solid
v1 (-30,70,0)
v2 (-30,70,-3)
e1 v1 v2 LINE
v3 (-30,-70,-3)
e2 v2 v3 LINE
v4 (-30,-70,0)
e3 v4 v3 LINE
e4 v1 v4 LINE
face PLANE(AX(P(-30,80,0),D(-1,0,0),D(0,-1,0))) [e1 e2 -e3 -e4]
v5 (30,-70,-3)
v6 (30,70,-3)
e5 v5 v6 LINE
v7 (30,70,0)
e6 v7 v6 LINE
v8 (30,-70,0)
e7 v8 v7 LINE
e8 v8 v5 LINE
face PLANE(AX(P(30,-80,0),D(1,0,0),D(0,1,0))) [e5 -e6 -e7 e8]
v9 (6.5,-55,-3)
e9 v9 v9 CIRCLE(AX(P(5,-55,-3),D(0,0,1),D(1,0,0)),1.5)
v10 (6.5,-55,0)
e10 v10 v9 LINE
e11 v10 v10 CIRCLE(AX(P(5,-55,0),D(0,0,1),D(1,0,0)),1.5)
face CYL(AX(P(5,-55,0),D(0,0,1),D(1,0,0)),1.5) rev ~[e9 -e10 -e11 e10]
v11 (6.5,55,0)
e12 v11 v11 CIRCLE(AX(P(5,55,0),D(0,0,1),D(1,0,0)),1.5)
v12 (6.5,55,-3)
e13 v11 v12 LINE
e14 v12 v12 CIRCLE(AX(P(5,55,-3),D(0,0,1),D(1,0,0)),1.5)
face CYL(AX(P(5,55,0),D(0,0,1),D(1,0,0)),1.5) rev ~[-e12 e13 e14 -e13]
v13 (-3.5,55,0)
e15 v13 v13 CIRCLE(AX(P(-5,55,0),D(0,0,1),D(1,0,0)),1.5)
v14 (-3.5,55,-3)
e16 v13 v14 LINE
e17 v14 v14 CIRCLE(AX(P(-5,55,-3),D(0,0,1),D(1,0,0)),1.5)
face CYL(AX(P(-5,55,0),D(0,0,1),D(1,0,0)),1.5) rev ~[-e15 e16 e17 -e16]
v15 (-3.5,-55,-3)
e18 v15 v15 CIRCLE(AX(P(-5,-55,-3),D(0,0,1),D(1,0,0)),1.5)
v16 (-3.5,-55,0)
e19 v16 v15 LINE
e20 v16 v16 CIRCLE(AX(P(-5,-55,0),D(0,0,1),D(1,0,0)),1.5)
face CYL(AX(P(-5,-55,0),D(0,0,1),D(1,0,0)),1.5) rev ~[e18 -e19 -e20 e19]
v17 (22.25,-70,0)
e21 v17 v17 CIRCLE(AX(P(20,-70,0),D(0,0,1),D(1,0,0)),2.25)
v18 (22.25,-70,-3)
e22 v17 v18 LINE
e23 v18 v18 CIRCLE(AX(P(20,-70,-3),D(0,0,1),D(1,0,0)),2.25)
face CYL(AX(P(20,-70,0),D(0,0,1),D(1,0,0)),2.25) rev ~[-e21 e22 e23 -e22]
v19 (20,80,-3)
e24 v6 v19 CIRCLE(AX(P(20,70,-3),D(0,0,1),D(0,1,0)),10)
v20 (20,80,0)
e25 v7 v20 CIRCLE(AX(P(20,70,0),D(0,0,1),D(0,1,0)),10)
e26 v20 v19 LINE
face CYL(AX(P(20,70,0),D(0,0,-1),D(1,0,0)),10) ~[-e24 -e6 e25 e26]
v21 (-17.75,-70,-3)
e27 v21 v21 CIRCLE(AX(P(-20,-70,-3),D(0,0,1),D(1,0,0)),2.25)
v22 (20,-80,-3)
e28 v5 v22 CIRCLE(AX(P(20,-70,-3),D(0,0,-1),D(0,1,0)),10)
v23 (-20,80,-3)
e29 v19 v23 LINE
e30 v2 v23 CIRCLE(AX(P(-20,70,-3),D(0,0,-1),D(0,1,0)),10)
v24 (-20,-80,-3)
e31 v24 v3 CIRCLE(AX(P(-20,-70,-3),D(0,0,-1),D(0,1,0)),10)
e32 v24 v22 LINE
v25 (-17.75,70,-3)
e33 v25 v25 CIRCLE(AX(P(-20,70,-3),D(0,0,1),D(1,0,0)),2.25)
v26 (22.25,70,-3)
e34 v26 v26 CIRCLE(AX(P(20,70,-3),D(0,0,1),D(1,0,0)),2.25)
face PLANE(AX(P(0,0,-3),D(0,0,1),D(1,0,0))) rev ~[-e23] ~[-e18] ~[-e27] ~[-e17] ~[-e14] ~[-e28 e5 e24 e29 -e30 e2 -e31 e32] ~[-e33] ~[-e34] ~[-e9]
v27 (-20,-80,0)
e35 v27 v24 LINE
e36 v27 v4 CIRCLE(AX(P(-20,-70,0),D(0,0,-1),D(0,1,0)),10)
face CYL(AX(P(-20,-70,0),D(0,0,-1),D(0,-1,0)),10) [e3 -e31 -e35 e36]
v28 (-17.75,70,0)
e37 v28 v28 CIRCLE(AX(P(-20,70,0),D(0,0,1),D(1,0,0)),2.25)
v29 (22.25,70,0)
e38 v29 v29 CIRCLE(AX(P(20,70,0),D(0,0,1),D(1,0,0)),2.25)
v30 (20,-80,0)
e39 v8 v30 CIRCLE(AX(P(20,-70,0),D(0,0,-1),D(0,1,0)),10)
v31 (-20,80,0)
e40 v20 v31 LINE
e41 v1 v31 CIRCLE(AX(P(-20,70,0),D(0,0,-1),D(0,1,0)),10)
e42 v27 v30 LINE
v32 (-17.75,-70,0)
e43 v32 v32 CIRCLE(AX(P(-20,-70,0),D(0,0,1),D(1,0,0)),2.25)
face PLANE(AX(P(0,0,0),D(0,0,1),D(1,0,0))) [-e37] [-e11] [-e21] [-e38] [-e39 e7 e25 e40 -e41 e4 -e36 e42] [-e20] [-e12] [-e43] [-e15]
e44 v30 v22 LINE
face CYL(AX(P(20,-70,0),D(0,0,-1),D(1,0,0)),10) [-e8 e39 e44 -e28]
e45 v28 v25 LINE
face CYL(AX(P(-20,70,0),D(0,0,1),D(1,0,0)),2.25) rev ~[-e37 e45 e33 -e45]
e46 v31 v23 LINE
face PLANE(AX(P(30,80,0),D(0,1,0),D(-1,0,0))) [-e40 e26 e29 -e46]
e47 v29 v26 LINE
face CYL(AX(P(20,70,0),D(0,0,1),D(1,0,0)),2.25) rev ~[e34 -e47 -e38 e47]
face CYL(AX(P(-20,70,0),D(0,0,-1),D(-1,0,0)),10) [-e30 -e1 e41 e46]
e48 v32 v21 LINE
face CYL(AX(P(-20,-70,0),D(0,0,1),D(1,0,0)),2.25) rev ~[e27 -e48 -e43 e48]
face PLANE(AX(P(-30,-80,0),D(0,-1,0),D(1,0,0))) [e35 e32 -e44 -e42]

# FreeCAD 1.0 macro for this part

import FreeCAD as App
import Part
import Sketcher

V = App.Vector
Q = App.Units.Quantity


def edges_at(feature, points):
    """Names of the edges that pass closest to the given points."""
    edges = feature.Shape.Edges
    near = lambda p: min(range(len(edges)), key=lambda i: edges[i].distToShape(Part.Vertex(*p))[0])
    return sorted({f"Edge{near(p) + 1}" for p in points})

doc = App.newDocument("Part")
body = doc.addObject("PartDesign::Body", "Body")

# Sketch on XY plane
sketch1 = body.newObject("Sketcher::SketchObject", "Sketch")
sketch1.AttachmentSupport = (doc.getObject("XY_Plane"), [""])
sketch1.MapMode = "FlatFace"
sketch1.addGeometry(Part.LineSegment(V(30, -80, 0), V(30, 80, 0)), False)
sketch1.addGeometry(Part.LineSegment(V(30, 80, 0), V(-30, 80, 0)), False)
sketch1.addGeometry(Part.LineSegment(V(-30, 80, 0), V(-30, -80, 0)), False)
sketch1.addGeometry(Part.LineSegment(V(-30, -80, 0), V(30, -80, 0)), False)
sketch1.addGeometry(Part.Circle(V(-20, -70, 0), V(0, 0, 1), 2.25), False)
sketch1.addGeometry(Part.Circle(V(-5, -55, 0), V(0, 0, 1), 1.5), False)
sketch1.addGeometry(Part.Circle(V(5, -55, 0), V(0, 0, 1), 1.5), False)
sketch1.addGeometry(Part.Circle(V(20, -70, 0), V(0, 0, 1), 2.25), False)
sketch1.addGeometry(Part.Circle(V(-20, 70, 0), V(0, 0, 1), 2.25), False)
sketch1.addGeometry(Part.Circle(V(-5, 55, 0), V(0, 0, 1), 1.5), False)
sketch1.addGeometry(Part.Circle(V(5, 55, 0), V(0, 0, 1), 1.5), False)
sketch1.addGeometry(Part.Circle(V(20, 70, 0), V(0, 0, 1), 2.25), False)
sketch1.addConstraint(Sketcher.Constraint("Coincident", 0, 2, 1, 1))
sketch1.addConstraint(Sketcher.Constraint("Coincident", 1, 2, 2, 1))
sketch1.addConstraint(Sketcher.Constraint("Coincident", 2, 2, 3, 1))
sketch1.addConstraint(Sketcher.Constraint("Coincident", 3, 2, 0, 1))
sketch1.addConstraint(Sketcher.Constraint("Vertical", 0))
sketch1.addConstraint(Sketcher.Constraint("Horizontal", 1))
sketch1.addConstraint(Sketcher.Constraint("Vertical", 2))
sketch1.addConstraint(Sketcher.Constraint("Horizontal", 3))
sketch1.addConstraint(Sketcher.Constraint("Equal", 5, 6))
sketch1.addConstraint(Sketcher.Constraint("Equal", 4, 7))
sketch1.addConstraint(Sketcher.Constraint("Equal", 7, 8))
sketch1.addConstraint(Sketcher.Constraint("Equal", 6, 9))
sketch1.addConstraint(Sketcher.Constraint("Equal", 9, 10))
sketch1.addConstraint(Sketcher.Constraint("Equal", 8, 11))
sketch1.addConstraint(Sketcher.Constraint("Symmetric", 7, 3, 8, 3, -1, 1))
sketch1.addConstraint(Sketcher.Constraint("Symmetric", 6, 3, 9, 3, -1, 1))
sketch1.addConstraint(Sketcher.Constraint("Symmetric", 5, 3, 10, 3, -1, 1))
sketch1.addConstraint(Sketcher.Constraint("Symmetric", 4, 3, 11, 3, -1, 1))
sketch1.addConstraint(Sketcher.Constraint("Symmetric", 0, 2, 2, 2, -1, 1))
sketch1.addConstraint(Sketcher.Constraint("Symmetric", 5, 3, 6, 3, -2))
sketch1.addConstraint(Sketcher.Constraint("Symmetric", 4, 3, 7, 3, -2))
sketch1.addConstraint(Sketcher.Constraint("Diameter", 5, Q("3 mm")))
sketch1.addConstraint(Sketcher.Constraint("Diameter", 4, Q("4.5 mm")))
sketch1.addConstraint(Sketcher.Constraint("DistanceX", 1, 2, 1, 1, Q("60 mm")))
sketch1.addConstraint(Sketcher.Constraint("DistanceY", 0, 1, 0, 2, Q("160 mm")))
sketch1.addConstraint(Sketcher.Constraint("DistanceX", 5, 3, -1, 1, Q("5 mm")))
sketch1.addConstraint(Sketcher.Constraint("DistanceY", 5, 3, -1, 1, Q("55 mm")))
sketch1.addConstraint(Sketcher.Constraint("DistanceX", 4, 3, 7, 3, Q("40 mm")))
sketch1.addConstraint(Sketcher.Constraint("DistanceY", 4, 3, 8, 3, Q("140 mm")))
pad1 = body.newObject("PartDesign::Pad", "Pad")
pad1.Profile = sketch1
pad1.Length = 3
pad1.Reversed = True
doc.recompute()

fillet = body.newObject("PartDesign::Fillet", "Fillet")
fillet.Base = (pad1, edges_at(pad1, [
    (-30, -80, -1.5),
    (30, -80, -1.5),
    (30, 80, -1.5),
    (-30, 80, -1.5),
]))
fillet.Radius = 10

doc.recompute()
